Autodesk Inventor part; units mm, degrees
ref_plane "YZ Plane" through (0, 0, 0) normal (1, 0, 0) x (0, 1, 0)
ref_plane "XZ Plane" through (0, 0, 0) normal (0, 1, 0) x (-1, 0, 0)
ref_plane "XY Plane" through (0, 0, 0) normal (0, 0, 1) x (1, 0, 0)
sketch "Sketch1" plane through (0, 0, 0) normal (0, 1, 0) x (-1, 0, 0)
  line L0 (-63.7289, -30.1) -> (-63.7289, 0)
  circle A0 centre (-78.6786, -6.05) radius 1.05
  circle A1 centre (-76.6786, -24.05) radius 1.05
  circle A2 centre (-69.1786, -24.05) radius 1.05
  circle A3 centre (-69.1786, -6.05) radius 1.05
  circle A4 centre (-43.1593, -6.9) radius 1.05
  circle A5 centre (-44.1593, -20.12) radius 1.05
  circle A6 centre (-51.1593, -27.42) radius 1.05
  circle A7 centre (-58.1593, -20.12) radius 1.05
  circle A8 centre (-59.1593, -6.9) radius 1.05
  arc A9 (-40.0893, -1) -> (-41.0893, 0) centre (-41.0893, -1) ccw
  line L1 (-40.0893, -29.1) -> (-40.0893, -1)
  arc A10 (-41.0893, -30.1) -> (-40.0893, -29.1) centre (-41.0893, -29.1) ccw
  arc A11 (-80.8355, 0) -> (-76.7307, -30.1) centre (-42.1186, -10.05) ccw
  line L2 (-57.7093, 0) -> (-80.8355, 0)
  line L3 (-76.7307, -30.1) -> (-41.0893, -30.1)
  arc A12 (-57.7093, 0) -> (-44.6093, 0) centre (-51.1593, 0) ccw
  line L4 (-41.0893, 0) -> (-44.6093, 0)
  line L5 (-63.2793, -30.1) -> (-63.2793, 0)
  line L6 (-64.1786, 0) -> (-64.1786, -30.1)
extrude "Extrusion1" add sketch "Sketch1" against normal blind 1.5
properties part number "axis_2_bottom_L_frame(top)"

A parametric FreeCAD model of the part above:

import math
import FreeCAD as App
import Part
import Sketcher

V = App.Vector

doc = App.newDocument("Part")
body = doc.addObject("PartDesign::Body", "Body")

# Sketch on XZ plane
sketch1 = doc.addObject("Sketcher::SketchObject", "Sketch")
body.addObject(sketch1)
sketch1.AttachmentSupport = (doc.XZ_Plane, [""])
sketch1.MapMode = "FlatFace"
sketch1.addGeometry([
    Part.ArcOfCircle(Part.Circle(V(41.1, -29.1, 0), V(0, 0, 1), 1), math.radians(180), math.radians(270)),  # 0
    Part.LineSegment(V(40.1, -29.1, 0), V(40.1, -1, 0)),  # 1
    Part.ArcOfCircle(Part.Circle(V(41.1, -1, 0), V(0, 0, 1), 1), math.radians(90), math.radians(180)),  # 2
    Part.LineSegment(V(41.1, 0, 0), V(44.6, 0, 0)),  # 3
    Part.ArcOfCircle(Part.Circle(V(51.2, 0, 0), V(0, 0, 1), 6.5), math.radians(180), math.radians(360)),  # 4
    Part.LineSegment(V(57.7, 0, 0), V(80.8, 0, 0)),  # 5
    Part.ArcOfCircle(Part.Circle(V(42.1, -10.1, 0), V(0, 0, 1), 40), math.radians(-30), math.radians(15)),  # 6
    Part.LineSegment(V(76.7, -30.1, 0), V(41.1, -30.1, 0)),  # 7
    Part.Circle(V(69.2, -6, 0), V(0, 0, 1), 1.1),  # 8
    Part.Circle(V(76.7, -24.1, 0), V(0, 0, 1), 1.1),  # 9
    Part.Circle(V(69.2, -24.1, 0), V(0, 0, 1), 1.1),  # 10
    Part.Circle(V(78.7, -6, 0), V(0, 0, 1), 1.1),  # 11
    Part.Circle(V(43.2, -6.9, 0), V(0, 0, 1), 1.1),  # 12
    Part.Circle(V(51.2, -27.4, 0), V(0, 0, 1), 1.1),  # 13
    Part.Circle(V(58.2, -20.1, 0), V(0, 0, 1), 1.1),  # 14
    Part.Circle(V(44.2, -20.1, 0), V(0, 0, 1), 1.1),  # 15
    Part.Circle(V(59.2, -6.9, 0), V(0, 0, 1), 1.1),  # 16
], False)
sketch1.addConstraint([
    Sketcher.Constraint("Tangent", 0, 1, 1, 1),
    Sketcher.Constraint("Tangent", 1, 2, 2, 2),
    Sketcher.Constraint("Tangent", 2, 1, 3, 1),
    Sketcher.Constraint("Coincident", 3, 2, 4, 1),
    Sketcher.Constraint("Coincident", 4, 2, 5, 1),
    Sketcher.Constraint("Coincident", 5, 2, 6, 2),
    Sketcher.Constraint("Coincident", 6, 1, 7, 1),
    Sketcher.Constraint("Tangent", 7, 2, 0, 2),
    Sketcher.Constraint("Vertical", 1),
    Sketcher.Constraint("Horizontal", 3),
    Sketcher.Constraint("Horizontal", 5),
    Sketcher.Constraint("Horizontal", 7),
    Sketcher.Constraint("Equal", 0, 2),
    Sketcher.Constraint("Equal", 8, 9),
    Sketcher.Constraint("Equal", 9, 10),
    Sketcher.Constraint("Equal", 10, 11),
    Sketcher.Constraint("Equal", 11, 12),
    Sketcher.Constraint("Equal", 12, 13),
    Sketcher.Constraint("Equal", 13, 14),
    Sketcher.Constraint("Equal", 14, 15),
    Sketcher.Constraint("Equal", 15, 16),
    Sketcher.Constraint("PointOnObject", 4, 3, -1),
    Sketcher.Constraint("PointOnObject", 2, 1, -1),
    Sketcher.Constraint("PointOnObject", 4, 2, -1),
    Sketcher.Constraint("Horizontal", 9, 3, 10, 3),
    Sketcher.Constraint("Horizontal", 8, 3, 11, 3),
    Sketcher.Constraint("Horizontal", 14, 3, 15, 3),
    Sketcher.Constraint("Horizontal", 12, 3, 16, 3),
    Sketcher.Constraint("Vertical", 8, 3, 10, 3),
    Sketcher.Constraint("Vertical", 4, 3, 13, 3),
    Sketcher.Constraint("Radius", 0, 1.0),
    Sketcher.Constraint("Radius", 6, 40.0),
    Sketcher.Constraint("Diameter", 8, 2.1),
    Sketcher.Constraint("Radius", 4, 6.55),
    Sketcher.Constraint("DistanceY", 1, 1, 1, 2, 28.1),
    Sketcher.Constraint("DistanceY", 6, 3, 8, 3, 4.0),
    Sketcher.Constraint("DistanceY", 9, 3, 8, 3, 18.0),
    Sketcher.Constraint("DistanceX", 9, 3, 11, 3, 2.0),
    Sketcher.Constraint("DistanceX", 12, 3, 4, 3, 8.0),
    Sketcher.Constraint("DistanceX", 13, 3, 14, 3, 7.0),
    Sketcher.Constraint("DistanceX", 15, 3, 13, 3, 7.0),
    Sketcher.Constraint("DistanceX", 4, 3, 16, 3, 8.0),
    Sketcher.Constraint("DistanceX", 3, 1, 3, 2, 3.52),
    Sketcher.Constraint("DistanceY", 12, 3, -1, 1, 6.9),
    Sketcher.Constraint("DistanceX", 8, 3, 9, 3, 7.5),
    Sketcher.Constraint("DistanceY", 13, 3, 14, 3, 7.3),
    Sketcher.Constraint("DistanceY", 6, 3, -1, 1, 10.05),
    Sketcher.Constraint("DistanceY", 13, 3, -1, 1, 27.42),
    Sketcher.Constraint("DistanceX", 6, 3, 8, 3, 27.06),
    Sketcher.Constraint("DistanceX", 5, 1, 5, 2, 23.1262),
    Sketcher.Constraint("DistanceX", -1, 1, 0, 3, 41.0893),
])
pad1 = doc.addObject("PartDesign::Pad", "Pad")
body.addObject(pad1)
pad1.Profile = sketch1
pad1.Length = 1.5

doc.recompute()
